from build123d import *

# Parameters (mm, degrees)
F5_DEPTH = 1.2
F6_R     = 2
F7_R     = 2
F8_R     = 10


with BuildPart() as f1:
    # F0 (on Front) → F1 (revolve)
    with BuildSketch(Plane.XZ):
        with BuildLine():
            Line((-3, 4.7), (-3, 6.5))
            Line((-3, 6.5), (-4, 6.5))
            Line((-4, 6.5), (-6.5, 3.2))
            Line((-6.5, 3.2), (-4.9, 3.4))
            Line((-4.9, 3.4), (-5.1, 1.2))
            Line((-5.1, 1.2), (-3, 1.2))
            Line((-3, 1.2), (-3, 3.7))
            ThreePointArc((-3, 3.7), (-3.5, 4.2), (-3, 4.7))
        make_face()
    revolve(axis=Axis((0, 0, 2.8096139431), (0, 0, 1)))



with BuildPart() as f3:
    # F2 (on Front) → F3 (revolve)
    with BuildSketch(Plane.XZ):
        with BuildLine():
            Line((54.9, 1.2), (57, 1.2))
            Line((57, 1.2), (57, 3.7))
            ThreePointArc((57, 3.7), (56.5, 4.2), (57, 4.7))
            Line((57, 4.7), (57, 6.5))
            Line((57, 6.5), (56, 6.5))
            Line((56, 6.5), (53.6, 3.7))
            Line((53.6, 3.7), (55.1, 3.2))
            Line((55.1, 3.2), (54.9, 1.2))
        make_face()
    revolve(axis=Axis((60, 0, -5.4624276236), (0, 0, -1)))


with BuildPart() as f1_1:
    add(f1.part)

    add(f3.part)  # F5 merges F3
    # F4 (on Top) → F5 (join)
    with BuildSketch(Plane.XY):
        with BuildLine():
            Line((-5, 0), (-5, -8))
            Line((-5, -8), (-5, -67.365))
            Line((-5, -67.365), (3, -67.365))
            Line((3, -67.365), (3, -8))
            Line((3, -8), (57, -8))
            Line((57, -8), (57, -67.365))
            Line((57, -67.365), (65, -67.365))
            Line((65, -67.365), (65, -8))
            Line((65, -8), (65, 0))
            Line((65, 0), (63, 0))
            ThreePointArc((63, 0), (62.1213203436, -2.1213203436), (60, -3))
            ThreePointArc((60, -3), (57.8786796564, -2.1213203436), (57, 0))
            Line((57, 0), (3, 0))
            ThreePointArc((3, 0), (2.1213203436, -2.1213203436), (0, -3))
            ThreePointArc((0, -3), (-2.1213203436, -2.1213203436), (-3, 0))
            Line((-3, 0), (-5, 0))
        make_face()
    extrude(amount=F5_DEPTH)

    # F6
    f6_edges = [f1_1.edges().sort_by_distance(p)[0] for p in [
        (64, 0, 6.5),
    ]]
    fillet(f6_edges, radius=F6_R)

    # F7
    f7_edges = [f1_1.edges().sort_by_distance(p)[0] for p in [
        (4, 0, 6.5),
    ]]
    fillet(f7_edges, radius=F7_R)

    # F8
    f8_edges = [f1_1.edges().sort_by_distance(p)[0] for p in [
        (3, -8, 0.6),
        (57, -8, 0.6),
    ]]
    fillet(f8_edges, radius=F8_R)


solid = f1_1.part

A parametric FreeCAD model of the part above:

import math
import FreeCAD as App
import Part
import Sketcher


def edges_at(feature, points):
    """Names of the edges that pass closest to the given points."""
    edges = feature.Shape.Edges
    near = lambda p: min(range(len(edges)), key=lambda i: edges[i].distToShape(Part.Vertex(*p))[0])
    return sorted({f"Edge{near(p) + 1}" for p in points})

doc = App.newDocument("Part")
body = doc.addObject("PartDesign::Body", "Body")

sketch1 = body.newObject("Sketcher::SketchObject", "Sketch")
sketch1.AttachmentSupport = (doc.getObject("XZ_Plane"), [""])
sketch1.MapMode = "FlatFace"
sketch1.addGeometry([
    Part.LineSegment(App.Vector(-3, 4.7, 0), App.Vector(-3, 6.5, 0)),
    Part.LineSegment(App.Vector(-3, 6.5, 0), App.Vector(-4, 6.5, 0)),
    Part.LineSegment(App.Vector(-4, 6.5, 0), App.Vector(-6.5, 3.2, 0)),
    Part.LineSegment(App.Vector(-6.5, 3.2, 0), App.Vector(-4.9, 3.4, 0)),
    Part.LineSegment(App.Vector(-4.9, 3.4, 0), App.Vector(-5.1, 1.2, 0)),
    Part.LineSegment(App.Vector(-5.1, 1.2, 0), App.Vector(-3, 1.2, 0)),
    Part.LineSegment(App.Vector(-3, 1.2, 0), App.Vector(-3, 3.7, 0)),
    Part.ArcOfCircle(Part.Circle(App.Vector(-3, 4.2, 0), App.Vector(0, 0, 1), 0.5), math.radians(90), math.radians(270)),
], False)
sketch1.addConstraint([
    Sketcher.Constraint("Coincident", 0, 2, 1, 1),
    Sketcher.Constraint("Coincident", 1, 2, 2, 1),
    Sketcher.Constraint("Coincident", 2, 2, 3, 1),
    Sketcher.Constraint("Coincident", 3, 2, 4, 1),
    Sketcher.Constraint("Coincident", 4, 2, 5, 1),
    Sketcher.Constraint("Coincident", 5, 2, 6, 1),
    Sketcher.Constraint("Coincident", 6, 2, 7, 2),
    Sketcher.Constraint("Coincident", 7, 1, 0, 1),
    Sketcher.Constraint("Vertical", 0),
    Sketcher.Constraint("Horizontal", 1),
    Sketcher.Constraint("Horizontal", 5),
    Sketcher.Constraint("Vertical", 6),
    Sketcher.Constraint("Vertical", 7, 3, 0, 2),
    Sketcher.Constraint("Vertical", 0, 2, 5, 2),
    Sketcher.Constraint("Radius", 7, 0.5),
    Sketcher.Constraint("DistanceX", 1, 2, 1, 1, 1.0),
    Sketcher.Constraint("DistanceX", 5, 1, 5, 2, 2.1),
    Sketcher.Constraint("DistanceY", 0, 1, 0, 2, 1.8),
    Sketcher.Constraint("DistanceY", 6, 1, 6, 2, 2.5),
    Sketcher.Constraint("DistanceX", 7, 3, -1, 1, 3.0),
    Sketcher.Constraint("DistanceY", 2, 2, 7, 3, 1.0),
    Sketcher.Constraint("DistanceY", -1, 1, 7, 3, 4.2),
    Sketcher.Constraint("DistanceX", 2, 2, -1, 1, 6.5),
    Sketcher.Constraint("DistanceX", 3, 2, -1, 1, 4.9),
    Sketcher.Constraint("DistanceY", -1, 1, 3, 2, 3.4),
])
revolution = body.newObject("PartDesign::Revolution", "Revolution")
revolution.Profile = sketch1
revolution.ReferenceAxis = (sketch1, ["V_Axis"])
revolution.Angle = 360
body2 = doc.addObject("PartDesign::Body", "Body001")

sketch2 = body2.newObject("Sketcher::SketchObject", "Sketch001")
sketch2.AttachmentSupport = (doc.getObject("XZ_Plane001"), [""])
sketch2.MapMode = "FlatFace"
sketch2.addGeometry([
    Part.LineSegment(App.Vector(54.9, 1.2, 0), App.Vector(57, 1.2, 0)),
    Part.LineSegment(App.Vector(57, 1.2, 0), App.Vector(57, 3.7, 0)),
    Part.ArcOfCircle(Part.Circle(App.Vector(57, 4.2, 0), App.Vector(0, 0, 1), 0.5), math.radians(90), math.radians(270)),
    Part.LineSegment(App.Vector(57, 4.7, 0), App.Vector(57, 6.5, 0)),
    Part.LineSegment(App.Vector(57, 6.5, 0), App.Vector(56, 6.5, 0)),
    Part.LineSegment(App.Vector(56, 6.5, 0), App.Vector(53.6, 3.7, 0)),
    Part.LineSegment(App.Vector(53.6, 3.7, 0), App.Vector(55.1, 3.2, 0)),
    Part.LineSegment(App.Vector(55.1, 3.2, 0), App.Vector(54.9, 1.2, 0)),
], False)
sketch2.addGeometry(Part.LineSegment(App.Vector(60, 6.5, 0), App.Vector(60, 1.2, 0)), True)
sketch2.addConstraint([
    Sketcher.Constraint("Coincident", 0, 2, 1, 1),
    Sketcher.Constraint("Coincident", 1, 2, 2, 2),
    Sketcher.Constraint("Coincident", 2, 1, 3, 1),
    Sketcher.Constraint("Coincident", 3, 2, 4, 1),
    Sketcher.Constraint("Coincident", 4, 2, 5, 1),
    Sketcher.Constraint("Coincident", 5, 2, 6, 1),
    Sketcher.Constraint("Coincident", 6, 2, 7, 1),
    Sketcher.Constraint("Coincident", 7, 2, 0, 1),
    Sketcher.Constraint("Horizontal", 0),
    Sketcher.Constraint("Vertical", 1),
    Sketcher.Constraint("Vertical", 3),
    Sketcher.Constraint("Horizontal", 4),
    Sketcher.Constraint("Vertical", 8),
    Sketcher.Constraint("Horizontal", 1, 2, 5, 2),
    Sketcher.Constraint("Horizontal", 4, 2, 8, 1),
    Sketcher.Constraint("Horizontal", 7, 2, 8, 2),
    Sketcher.Constraint("Vertical", 2, 3, 0, 2),
    Sketcher.Constraint("Vertical", 1, 2, 2, 1),
    Sketcher.Constraint("Radius", 2, 0.5),
    Sketcher.Constraint("DistanceX", 4, 2, 4, 1, 1.0),
    Sketcher.Constraint("DistanceX", 0, 1, 0, 2, 2.1),
    Sketcher.Constraint("DistanceY", 1, 1, 1, 2, 2.5),
    Sketcher.Constraint("DistanceY", 3, 1, 3, 2, 1.8),
    Sketcher.Constraint("DistanceX", -1, 1, 2, 3, 57.0),
    Sketcher.Constraint("DistanceX", -1, 1, 8, 1, 60.0),
    Sketcher.Constraint("DistanceY", 6, 2, 2, 3, 1.0),
    Sketcher.Constraint("DistanceY", -1, 1, 2, 3, 4.2),
    Sketcher.Constraint("DistanceX", -1, 1, 5, 2, 53.6),
    Sketcher.Constraint("DistanceX", -1, 1, 6, 2, 55.1),
])
revolution2 = body2.newObject("PartDesign::Revolution", "Revolution001")
revolution2.Profile = sketch2
revolution2.ReferenceAxis = (sketch2, ["Axis0"])
revolution2.Angle = 360
body.AllowCompound = True
doc.recompute()

boolean = body.newObject("PartDesign::Boolean", "Boolean")
boolean.Type = "Fuse"
boolean.addObjects([body2])

sketch3 = body.newObject("Sketcher::SketchObject", "Sketch002")
sketch3.AttachmentSupport = (doc.getObject("XY_Plane"), [""])
sketch3.MapMode = "FlatFace"
sketch3.addGeometry([
    Part.LineSegment(App.Vector(-5, 0, 0), App.Vector(-5, -67.4, 0)),
    Part.LineSegment(App.Vector(-5, -67.4, 0), App.Vector(3, -67.4, 0)),
    Part.LineSegment(App.Vector(3, -67.4, 0), App.Vector(3, -8, 0)),
    Part.LineSegment(App.Vector(3, -8, 0), App.Vector(57, -8, 0)),
    Part.LineSegment(App.Vector(57, -8, 0), App.Vector(57, -67.4, 0)),
    Part.LineSegment(App.Vector(57, -67.4, 0), App.Vector(65, -67.4, 0)),
    Part.LineSegment(App.Vector(65, -67.4, 0), App.Vector(65, 0, 0)),
    Part.LineSegment(App.Vector(65, 0, 0), App.Vector(63, 0, 0)),
    Part.ArcOfCircle(Part.Circle(App.Vector(60, 0, 0), App.Vector(0, 0, 1), 3), math.radians(-90), math.radians(0)),
    Part.ArcOfCircle(Part.Circle(App.Vector(60, 0, 0), App.Vector(0, 0, 1), 3), math.radians(180), math.radians(270)),
    Part.LineSegment(App.Vector(57, 0, 0), App.Vector(3, 0, 0)),
    Part.ArcOfCircle(Part.Circle(App.Vector(0, 0, 0), App.Vector(0, 0, 1), 3), math.radians(-90), math.radians(0)),
    Part.ArcOfCircle(Part.Circle(App.Vector(0, 0, 0), App.Vector(0, 0, 1), 3), math.radians(180), math.radians(270)),
    Part.LineSegment(App.Vector(-3, 0, 0), App.Vector(-5, 0, 0)),
], False)
sketch3.addConstraint([
    Sketcher.Constraint("Coincident", 0, 2, 1, 1),
    Sketcher.Constraint("Coincident", 1, 2, 2, 1),
    Sketcher.Constraint("Coincident", 2, 2, 3, 1),
    Sketcher.Constraint("Coincident", 3, 2, 4, 1),
    Sketcher.Constraint("Coincident", 4, 2, 5, 1),
    Sketcher.Constraint("Coincident", 5, 2, 6, 1),
    Sketcher.Constraint("Coincident", 6, 2, 7, 1),
    Sketcher.Constraint("Coincident", 7, 2, 8, 2),
    Sketcher.Constraint("Tangent", 8, 1, 9, 2),
    Sketcher.Constraint("Coincident", 9, 1, 10, 1),
    Sketcher.Constraint("Coincident", 10, 2, 11, 2),
    Sketcher.Constraint("Tangent", 11, 1, 12, 2),
    Sketcher.Constraint("Coincident", 12, 1, 13, 1),
    Sketcher.Constraint("Coincident", 13, 2, 0, 1),
    Sketcher.Constraint("Vertical", 0),
    Sketcher.Constraint("Horizontal", 1),
    Sketcher.Constraint("Vertical", 2),
    Sketcher.Constraint("Horizontal", 3),
    Sketcher.Constraint("Vertical", 4),
    Sketcher.Constraint("Horizontal", 5),
    Sketcher.Constraint("Vertical", 6),
    Sketcher.Constraint("Horizontal", 7),
    Sketcher.Constraint("Horizontal", 10),
    Sketcher.Constraint("Horizontal", 13),
    Sketcher.Constraint("Coincident", 11, 3, -1, 1),
    Sketcher.Constraint("Equal", 8, 9),
    Sketcher.Constraint("Equal", 9, 11),
    Sketcher.Constraint("Equal", 11, 12),
    Sketcher.Constraint("PointOnObject", 8, 3, -1),
    Sketcher.Constraint("PointOnObject", 6, 2, -1),
    Sketcher.Constraint("PointOnObject", 9, 1, -1),
    Sketcher.Constraint("PointOnObject", 11, 1, -2),
    Sketcher.Constraint("PointOnObject", 12, 1, -1),
    Sketcher.Constraint("Horizontal", 1, 2, 4, 2),
    Sketcher.Constraint("Vertical", 9, 3, 8, 1),
    Sketcher.Constraint("Vertical", 4, 2, 9, 1),
    Sketcher.Constraint("Vertical", 2, 2, 10, 2),
    Sketcher.Constraint("Equal", 1, 5),
    Sketcher.Constraint("Radius", 8, 3.0),
    Sketcher.Constraint("DistanceX", 1, 1, 1, 2, 8.0),
    Sketcher.Constraint("DistanceX", 3, 1, 3, 2, 54.0),
    Sketcher.Constraint("DistanceY", 2, 2, -1, 1, 8.0),
    Sketcher.Constraint("DistanceY", 0, 2, 0, 1, 67.365),
])
pad1 = body.newObject("PartDesign::Pad", "Pad")
pad1.Profile = sketch3
pad1.Length = 1.2
doc.recompute()

fillet = body.newObject("PartDesign::Fillet", "Fillet")
fillet.Base = (pad1, edges_at(pad1, [(64, 0, 6.5)]))
fillet.Radius = 2
doc.recompute()

fillet2 = body.newObject("PartDesign::Fillet", "Fillet001")
fillet2.Base = (fillet, edges_at(fillet, [(4, 0, 6.5)]))
fillet2.Radius = 2
doc.recompute()

fillet3 = body.newObject("PartDesign::Fillet", "Fillet002")
fillet3.Base = (fillet2, edges_at(fillet2, [(3, -8, 0.6), (57, -8, 0.6)]))
fillet3.Radius = 10

doc.recompute()
